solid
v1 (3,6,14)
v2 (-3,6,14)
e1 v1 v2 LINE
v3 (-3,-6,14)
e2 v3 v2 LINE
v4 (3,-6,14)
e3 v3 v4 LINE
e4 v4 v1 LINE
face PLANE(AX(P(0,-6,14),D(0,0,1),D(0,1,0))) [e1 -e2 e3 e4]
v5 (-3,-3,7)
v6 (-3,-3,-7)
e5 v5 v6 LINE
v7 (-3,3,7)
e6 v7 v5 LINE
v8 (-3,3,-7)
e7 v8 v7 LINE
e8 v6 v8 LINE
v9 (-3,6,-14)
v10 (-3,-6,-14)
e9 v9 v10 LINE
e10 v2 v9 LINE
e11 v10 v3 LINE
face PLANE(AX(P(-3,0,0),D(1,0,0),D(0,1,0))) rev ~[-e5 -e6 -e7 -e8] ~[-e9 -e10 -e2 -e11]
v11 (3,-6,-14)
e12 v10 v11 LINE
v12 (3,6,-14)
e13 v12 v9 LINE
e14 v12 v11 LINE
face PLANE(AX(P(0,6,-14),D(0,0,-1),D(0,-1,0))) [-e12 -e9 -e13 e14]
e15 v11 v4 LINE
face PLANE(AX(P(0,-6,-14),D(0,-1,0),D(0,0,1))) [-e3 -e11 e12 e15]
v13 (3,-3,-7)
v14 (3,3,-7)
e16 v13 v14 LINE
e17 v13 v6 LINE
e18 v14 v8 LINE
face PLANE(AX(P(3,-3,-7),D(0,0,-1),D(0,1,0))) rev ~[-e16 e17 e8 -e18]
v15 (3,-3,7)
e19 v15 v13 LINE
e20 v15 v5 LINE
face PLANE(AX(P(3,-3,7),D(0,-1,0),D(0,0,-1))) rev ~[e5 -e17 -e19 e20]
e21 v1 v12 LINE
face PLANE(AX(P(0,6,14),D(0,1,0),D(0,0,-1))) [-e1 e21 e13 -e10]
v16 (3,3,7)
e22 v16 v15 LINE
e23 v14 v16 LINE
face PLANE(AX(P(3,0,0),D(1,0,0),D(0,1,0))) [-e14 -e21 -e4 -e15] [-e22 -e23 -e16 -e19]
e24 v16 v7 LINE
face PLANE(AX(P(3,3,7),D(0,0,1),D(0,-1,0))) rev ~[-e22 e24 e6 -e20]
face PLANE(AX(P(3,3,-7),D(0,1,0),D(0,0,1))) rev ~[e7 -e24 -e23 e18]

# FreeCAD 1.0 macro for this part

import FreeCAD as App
import Part
import Sketcher
from FreeCAD import Vector

doc = App.newDocument("Part")
body = doc.addObject("PartDesign::Body", "Body")

# Sketch on YZ plane
sketch1 = body.newObject("Sketcher::SketchObject", "Sketch")
sketch1.AttachmentSupport = (doc.getObject("YZ_Plane"), [""])
sketch1.MapMode = "FlatFace"
sketch1.addGeometry(Part.LineSegment(Vector(6, 14, 0), Vector(-6, 14, 0)), False)
sketch1.addGeometry(Part.LineSegment(Vector(-6, 14, 0), Vector(-6, -14, 0)), False)
sketch1.addGeometry(Part.LineSegment(Vector(-6, -14, 0), Vector(6, -14, 0)), False)
sketch1.addGeometry(Part.LineSegment(Vector(6, -14, 0), Vector(6, 14, 0)), False)
sketch1.addConstraint(Sketcher.Constraint("Coincident", 0, 2, 1, 1))
sketch1.addConstraint(Sketcher.Constraint("Coincident", 1, 2, 2, 1))
sketch1.addConstraint(Sketcher.Constraint("Coincident", 2, 2, 3, 1))
sketch1.addConstraint(Sketcher.Constraint("Coincident", 3, 2, 0, 1))
sketch1.addConstraint(Sketcher.Constraint("Horizontal", 0))
sketch1.addConstraint(Sketcher.Constraint("Vertical", 1))
sketch1.addConstraint(Sketcher.Constraint("Horizontal", 2))
sketch1.addConstraint(Sketcher.Constraint("Vertical", 3))
sketch1.addConstraint(Sketcher.Constraint("Symmetric", 0, 2, 2, 2, -1, 1))
sketch1.addConstraint(Sketcher.Constraint("DistanceX", 0, 2, 0, 1, 12.0))
sketch1.addConstraint(Sketcher.Constraint("DistanceY", 1, 2, 1, 1, 28.0))
pad1 = body.newObject("PartDesign::Pad", "Pad")
pad1.Profile = sketch1
pad1.Length = 6
pad1.Midplane = True

# Sketch on YZ plane
sketch2 = body.newObject("Sketcher::SketchObject", "Sketch001")
sketch2.AttachmentSupport = (doc.getObject("YZ_Plane"), [""])
sketch2.MapMode = "FlatFace"
sketch2.AttachmentOffset = App.Placement(Vector(0, 0, 3), App.Rotation())
sketch2.addGeometry(Part.LineSegment(Vector(3, 7, 0), Vector(-3, 7, 0)), False)
sketch2.addGeometry(Part.LineSegment(Vector(-3, 7, 0), Vector(-3, -7, 0)), False)
sketch2.addGeometry(Part.LineSegment(Vector(-3, -7, 0), Vector(3, -7, 0)), False)
sketch2.addGeometry(Part.LineSegment(Vector(3, -7, 0), Vector(3, 7, 0)), False)
sketch2.addConstraint(Sketcher.Constraint("Coincident", 0, 2, 1, 1))
sketch2.addConstraint(Sketcher.Constraint("Coincident", 1, 2, 2, 1))
sketch2.addConstraint(Sketcher.Constraint("Coincident", 2, 2, 3, 1))
sketch2.addConstraint(Sketcher.Constraint("Coincident", 3, 2, 0, 1))
sketch2.addConstraint(Sketcher.Constraint("Horizontal", 0))
sketch2.addConstraint(Sketcher.Constraint("Vertical", 1))
sketch2.addConstraint(Sketcher.Constraint("Horizontal", 2))
sketch2.addConstraint(Sketcher.Constraint("Vertical", 3))
sketch2.addConstraint(Sketcher.Constraint("Symmetric", 0, 2, 2, 2, -1, 1))
sketch2.addConstraint(Sketcher.Constraint("DistanceX", 0, 2, 0, 1, 6.0))
sketch2.addConstraint(Sketcher.Constraint("DistanceY", 1, 2, 1, 1, 14.0))
pocket1 = body.newObject("PartDesign::Pocket", "Pocket")
pocket1.Profile = sketch2
pocket1.Type = "ThroughAll"

doc.recompute()
